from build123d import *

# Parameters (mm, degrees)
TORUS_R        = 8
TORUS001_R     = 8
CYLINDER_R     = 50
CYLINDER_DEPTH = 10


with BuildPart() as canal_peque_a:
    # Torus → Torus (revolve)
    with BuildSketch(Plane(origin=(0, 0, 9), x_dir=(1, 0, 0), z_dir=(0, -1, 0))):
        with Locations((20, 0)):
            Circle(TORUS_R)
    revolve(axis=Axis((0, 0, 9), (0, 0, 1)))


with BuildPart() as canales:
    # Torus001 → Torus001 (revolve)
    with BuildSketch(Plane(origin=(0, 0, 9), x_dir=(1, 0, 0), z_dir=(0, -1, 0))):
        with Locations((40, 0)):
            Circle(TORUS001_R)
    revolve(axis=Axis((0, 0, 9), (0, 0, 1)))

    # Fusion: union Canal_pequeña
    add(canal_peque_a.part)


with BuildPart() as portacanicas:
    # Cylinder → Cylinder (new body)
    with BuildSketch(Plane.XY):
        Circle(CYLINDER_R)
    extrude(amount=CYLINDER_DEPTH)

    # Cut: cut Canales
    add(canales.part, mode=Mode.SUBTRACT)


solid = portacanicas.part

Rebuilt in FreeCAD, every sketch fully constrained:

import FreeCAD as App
import Part
import Sketcher

doc = App.newDocument("Part")
params = doc.addObject("Spreadsheet::Sheet", "Params")
for row, (alias, value) in enumerate([
    ("sketch1_diameter", "16 mm"),
    ("revolution_angle", "360 deg"),
    ("sketch2_diameter", "16 mm"),
    ("revolution2_angle", "360 deg"),
    ("sketch3_diameter", "100 mm"),
    ("pad1_length", "10 mm"),
], start=1):
    params.set(f"A{row}", alias)
    params.set(f"B{row}", "=" + value)
    params.setAlias(f"B{row}", alias)

body = doc.addObject("PartDesign::Body", "Body")

sketch1 = doc.addObject("Sketcher::SketchObject", "Sketch")
body.addObject(sketch1)
sketch1.AttachmentSupport = (doc.XZ_Plane, [""])
sketch1.MapMode = "FlatFace"
sketch1.addGeometry(Part.Circle(App.Vector(20, 9, 0), App.Vector(0, 0, 1), 8), False)
sketch1.addConstraint(Sketcher.Constraint("Diameter", 0, 16.0))
sketch1.addConstraint(Sketcher.Constraint("DistanceX", -1, 1, 0, 3, 20.0))
sketch1.addConstraint(Sketcher.Constraint("DistanceY", -1, 1, 0, 3, 9.0))
sketch1.setExpression("Constraints[0]", "Params.sketch1_diameter")
revolution = doc.addObject("PartDesign::Revolution", "Revolution")
body.addObject(revolution)
revolution.Profile = sketch1
revolution.ReferenceAxis = (sketch1, ["V_Axis"])
revolution.setExpression("Angle", "Params.revolution_angle")
body2 = doc.addObject("PartDesign::Body", "Body001")
body2.AllowCompound = True

sketch2 = doc.addObject("Sketcher::SketchObject", "Sketch001")
body2.addObject(sketch2)
sketch2.AttachmentSupport = (doc.getObject("XZ_Plane001"), [""])
sketch2.MapMode = "FlatFace"
sketch2.addGeometry(Part.Circle(App.Vector(40, 9, 0), App.Vector(0, 0, 1), 8), False)
sketch2.addConstraint(Sketcher.Constraint("Diameter", 0, 16.0))
sketch2.addConstraint(Sketcher.Constraint("DistanceX", -1, 1, 0, 3, 40.0))
sketch2.addConstraint(Sketcher.Constraint("DistanceY", -1, 1, 0, 3, 9.0))
sketch2.setExpression("Constraints[0]", "Params.sketch2_diameter")
revolution2 = doc.addObject("PartDesign::Revolution", "Revolution001")
body2.addObject(revolution2)
revolution2.Profile = sketch2
revolution2.ReferenceAxis = (sketch2, ["V_Axis"])
revolution2.setExpression("Angle", "Params.revolution2_angle")
doc.recompute()

boolean = doc.addObject("PartDesign::Boolean", "Boolean")
body2.addObject(boolean)
boolean.Type = "Fuse"
boolean.addObjects([body])
body3 = doc.addObject("PartDesign::Body", "Body002")

sketch3 = doc.addObject("Sketcher::SketchObject", "Sketch002")
body3.addObject(sketch3)
sketch3.AttachmentSupport = (doc.getObject("XY_Plane002"), [""])
sketch3.MapMode = "FlatFace"
sketch3.addGeometry(Part.Circle(App.Vector(0, 0, 0), App.Vector(0, 0, 1), 50), False)
sketch3.addConstraint(Sketcher.Constraint("Coincident", 0, 3, -1, 1))
sketch3.addConstraint(Sketcher.Constraint("Diameter", 0, 100.0))
sketch3.setExpression("Constraints[1]", "Params.sketch3_diameter")
pad1 = doc.addObject("PartDesign::Pad", "Pad")
body3.addObject(pad1)
pad1.Profile = sketch3
pad1.setExpression("Length", "Params.pad1_length")
doc.recompute()

boolean2 = doc.addObject("PartDesign::Boolean", "Boolean001")
body3.addObject(boolean2)
boolean2.Type = "Cut"
boolean2.addObjects([body2])

doc.recompute()
